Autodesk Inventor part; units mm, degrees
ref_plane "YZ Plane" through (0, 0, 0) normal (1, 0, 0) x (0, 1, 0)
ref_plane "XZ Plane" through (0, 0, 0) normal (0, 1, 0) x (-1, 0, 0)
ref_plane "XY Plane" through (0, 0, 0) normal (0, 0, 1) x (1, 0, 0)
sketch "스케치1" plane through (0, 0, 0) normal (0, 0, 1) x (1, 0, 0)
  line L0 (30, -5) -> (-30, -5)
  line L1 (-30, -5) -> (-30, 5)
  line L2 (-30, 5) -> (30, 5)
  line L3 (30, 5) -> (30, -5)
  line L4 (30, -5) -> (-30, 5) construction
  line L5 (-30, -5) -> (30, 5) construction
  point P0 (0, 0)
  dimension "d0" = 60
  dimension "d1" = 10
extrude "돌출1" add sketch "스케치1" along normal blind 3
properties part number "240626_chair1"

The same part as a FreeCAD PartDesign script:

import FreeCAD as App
import Part
import Sketcher

doc = App.newDocument("Part")
body = doc.addObject("PartDesign::Body", "Body")

# Sketch on XY plane
sketch1 = body.newObject("Sketcher::SketchObject", "Sketch")
sketch1.AttachmentSupport = (doc.getObject("XY_Plane"), [""])
sketch1.MapMode = "FlatFace"
sketch1.addGeometry([
    Part.LineSegment(App.Vector(-30, -5, 0), App.Vector(30, -5, 0)),
    Part.LineSegment(App.Vector(30, -5, 0), App.Vector(30, 5, 0)),
    Part.LineSegment(App.Vector(30, 5, 0), App.Vector(-30, 5, 0)),
    Part.LineSegment(App.Vector(-30, 5, 0), App.Vector(-30, -5, 0)),
], False)
sketch1.addConstraint([
    Sketcher.Constraint("Coincident", 0, 2, 1, 1),
    Sketcher.Constraint("Coincident", 1, 2, 2, 1),
    Sketcher.Constraint("Coincident", 2, 2, 3, 1),
    Sketcher.Constraint("Coincident", 3, 2, 0, 1),
    Sketcher.Constraint("Horizontal", 0),
    Sketcher.Constraint("Vertical", 1),
    Sketcher.Constraint("Horizontal", 2),
    Sketcher.Constraint("Vertical", 3),
    Sketcher.Constraint("Symmetric", 0, 2, 2, 2, -1, 1),
    Sketcher.Constraint("DistanceX", 0, 1, 0, 2, 60.0),
    Sketcher.Constraint("DistanceY", 1, 1, 1, 2, 10.0),
])
pad1 = body.newObject("PartDesign::Pad", "Pad")
pad1.Profile = sketch1
pad1.Length = 3

doc.recompute()
